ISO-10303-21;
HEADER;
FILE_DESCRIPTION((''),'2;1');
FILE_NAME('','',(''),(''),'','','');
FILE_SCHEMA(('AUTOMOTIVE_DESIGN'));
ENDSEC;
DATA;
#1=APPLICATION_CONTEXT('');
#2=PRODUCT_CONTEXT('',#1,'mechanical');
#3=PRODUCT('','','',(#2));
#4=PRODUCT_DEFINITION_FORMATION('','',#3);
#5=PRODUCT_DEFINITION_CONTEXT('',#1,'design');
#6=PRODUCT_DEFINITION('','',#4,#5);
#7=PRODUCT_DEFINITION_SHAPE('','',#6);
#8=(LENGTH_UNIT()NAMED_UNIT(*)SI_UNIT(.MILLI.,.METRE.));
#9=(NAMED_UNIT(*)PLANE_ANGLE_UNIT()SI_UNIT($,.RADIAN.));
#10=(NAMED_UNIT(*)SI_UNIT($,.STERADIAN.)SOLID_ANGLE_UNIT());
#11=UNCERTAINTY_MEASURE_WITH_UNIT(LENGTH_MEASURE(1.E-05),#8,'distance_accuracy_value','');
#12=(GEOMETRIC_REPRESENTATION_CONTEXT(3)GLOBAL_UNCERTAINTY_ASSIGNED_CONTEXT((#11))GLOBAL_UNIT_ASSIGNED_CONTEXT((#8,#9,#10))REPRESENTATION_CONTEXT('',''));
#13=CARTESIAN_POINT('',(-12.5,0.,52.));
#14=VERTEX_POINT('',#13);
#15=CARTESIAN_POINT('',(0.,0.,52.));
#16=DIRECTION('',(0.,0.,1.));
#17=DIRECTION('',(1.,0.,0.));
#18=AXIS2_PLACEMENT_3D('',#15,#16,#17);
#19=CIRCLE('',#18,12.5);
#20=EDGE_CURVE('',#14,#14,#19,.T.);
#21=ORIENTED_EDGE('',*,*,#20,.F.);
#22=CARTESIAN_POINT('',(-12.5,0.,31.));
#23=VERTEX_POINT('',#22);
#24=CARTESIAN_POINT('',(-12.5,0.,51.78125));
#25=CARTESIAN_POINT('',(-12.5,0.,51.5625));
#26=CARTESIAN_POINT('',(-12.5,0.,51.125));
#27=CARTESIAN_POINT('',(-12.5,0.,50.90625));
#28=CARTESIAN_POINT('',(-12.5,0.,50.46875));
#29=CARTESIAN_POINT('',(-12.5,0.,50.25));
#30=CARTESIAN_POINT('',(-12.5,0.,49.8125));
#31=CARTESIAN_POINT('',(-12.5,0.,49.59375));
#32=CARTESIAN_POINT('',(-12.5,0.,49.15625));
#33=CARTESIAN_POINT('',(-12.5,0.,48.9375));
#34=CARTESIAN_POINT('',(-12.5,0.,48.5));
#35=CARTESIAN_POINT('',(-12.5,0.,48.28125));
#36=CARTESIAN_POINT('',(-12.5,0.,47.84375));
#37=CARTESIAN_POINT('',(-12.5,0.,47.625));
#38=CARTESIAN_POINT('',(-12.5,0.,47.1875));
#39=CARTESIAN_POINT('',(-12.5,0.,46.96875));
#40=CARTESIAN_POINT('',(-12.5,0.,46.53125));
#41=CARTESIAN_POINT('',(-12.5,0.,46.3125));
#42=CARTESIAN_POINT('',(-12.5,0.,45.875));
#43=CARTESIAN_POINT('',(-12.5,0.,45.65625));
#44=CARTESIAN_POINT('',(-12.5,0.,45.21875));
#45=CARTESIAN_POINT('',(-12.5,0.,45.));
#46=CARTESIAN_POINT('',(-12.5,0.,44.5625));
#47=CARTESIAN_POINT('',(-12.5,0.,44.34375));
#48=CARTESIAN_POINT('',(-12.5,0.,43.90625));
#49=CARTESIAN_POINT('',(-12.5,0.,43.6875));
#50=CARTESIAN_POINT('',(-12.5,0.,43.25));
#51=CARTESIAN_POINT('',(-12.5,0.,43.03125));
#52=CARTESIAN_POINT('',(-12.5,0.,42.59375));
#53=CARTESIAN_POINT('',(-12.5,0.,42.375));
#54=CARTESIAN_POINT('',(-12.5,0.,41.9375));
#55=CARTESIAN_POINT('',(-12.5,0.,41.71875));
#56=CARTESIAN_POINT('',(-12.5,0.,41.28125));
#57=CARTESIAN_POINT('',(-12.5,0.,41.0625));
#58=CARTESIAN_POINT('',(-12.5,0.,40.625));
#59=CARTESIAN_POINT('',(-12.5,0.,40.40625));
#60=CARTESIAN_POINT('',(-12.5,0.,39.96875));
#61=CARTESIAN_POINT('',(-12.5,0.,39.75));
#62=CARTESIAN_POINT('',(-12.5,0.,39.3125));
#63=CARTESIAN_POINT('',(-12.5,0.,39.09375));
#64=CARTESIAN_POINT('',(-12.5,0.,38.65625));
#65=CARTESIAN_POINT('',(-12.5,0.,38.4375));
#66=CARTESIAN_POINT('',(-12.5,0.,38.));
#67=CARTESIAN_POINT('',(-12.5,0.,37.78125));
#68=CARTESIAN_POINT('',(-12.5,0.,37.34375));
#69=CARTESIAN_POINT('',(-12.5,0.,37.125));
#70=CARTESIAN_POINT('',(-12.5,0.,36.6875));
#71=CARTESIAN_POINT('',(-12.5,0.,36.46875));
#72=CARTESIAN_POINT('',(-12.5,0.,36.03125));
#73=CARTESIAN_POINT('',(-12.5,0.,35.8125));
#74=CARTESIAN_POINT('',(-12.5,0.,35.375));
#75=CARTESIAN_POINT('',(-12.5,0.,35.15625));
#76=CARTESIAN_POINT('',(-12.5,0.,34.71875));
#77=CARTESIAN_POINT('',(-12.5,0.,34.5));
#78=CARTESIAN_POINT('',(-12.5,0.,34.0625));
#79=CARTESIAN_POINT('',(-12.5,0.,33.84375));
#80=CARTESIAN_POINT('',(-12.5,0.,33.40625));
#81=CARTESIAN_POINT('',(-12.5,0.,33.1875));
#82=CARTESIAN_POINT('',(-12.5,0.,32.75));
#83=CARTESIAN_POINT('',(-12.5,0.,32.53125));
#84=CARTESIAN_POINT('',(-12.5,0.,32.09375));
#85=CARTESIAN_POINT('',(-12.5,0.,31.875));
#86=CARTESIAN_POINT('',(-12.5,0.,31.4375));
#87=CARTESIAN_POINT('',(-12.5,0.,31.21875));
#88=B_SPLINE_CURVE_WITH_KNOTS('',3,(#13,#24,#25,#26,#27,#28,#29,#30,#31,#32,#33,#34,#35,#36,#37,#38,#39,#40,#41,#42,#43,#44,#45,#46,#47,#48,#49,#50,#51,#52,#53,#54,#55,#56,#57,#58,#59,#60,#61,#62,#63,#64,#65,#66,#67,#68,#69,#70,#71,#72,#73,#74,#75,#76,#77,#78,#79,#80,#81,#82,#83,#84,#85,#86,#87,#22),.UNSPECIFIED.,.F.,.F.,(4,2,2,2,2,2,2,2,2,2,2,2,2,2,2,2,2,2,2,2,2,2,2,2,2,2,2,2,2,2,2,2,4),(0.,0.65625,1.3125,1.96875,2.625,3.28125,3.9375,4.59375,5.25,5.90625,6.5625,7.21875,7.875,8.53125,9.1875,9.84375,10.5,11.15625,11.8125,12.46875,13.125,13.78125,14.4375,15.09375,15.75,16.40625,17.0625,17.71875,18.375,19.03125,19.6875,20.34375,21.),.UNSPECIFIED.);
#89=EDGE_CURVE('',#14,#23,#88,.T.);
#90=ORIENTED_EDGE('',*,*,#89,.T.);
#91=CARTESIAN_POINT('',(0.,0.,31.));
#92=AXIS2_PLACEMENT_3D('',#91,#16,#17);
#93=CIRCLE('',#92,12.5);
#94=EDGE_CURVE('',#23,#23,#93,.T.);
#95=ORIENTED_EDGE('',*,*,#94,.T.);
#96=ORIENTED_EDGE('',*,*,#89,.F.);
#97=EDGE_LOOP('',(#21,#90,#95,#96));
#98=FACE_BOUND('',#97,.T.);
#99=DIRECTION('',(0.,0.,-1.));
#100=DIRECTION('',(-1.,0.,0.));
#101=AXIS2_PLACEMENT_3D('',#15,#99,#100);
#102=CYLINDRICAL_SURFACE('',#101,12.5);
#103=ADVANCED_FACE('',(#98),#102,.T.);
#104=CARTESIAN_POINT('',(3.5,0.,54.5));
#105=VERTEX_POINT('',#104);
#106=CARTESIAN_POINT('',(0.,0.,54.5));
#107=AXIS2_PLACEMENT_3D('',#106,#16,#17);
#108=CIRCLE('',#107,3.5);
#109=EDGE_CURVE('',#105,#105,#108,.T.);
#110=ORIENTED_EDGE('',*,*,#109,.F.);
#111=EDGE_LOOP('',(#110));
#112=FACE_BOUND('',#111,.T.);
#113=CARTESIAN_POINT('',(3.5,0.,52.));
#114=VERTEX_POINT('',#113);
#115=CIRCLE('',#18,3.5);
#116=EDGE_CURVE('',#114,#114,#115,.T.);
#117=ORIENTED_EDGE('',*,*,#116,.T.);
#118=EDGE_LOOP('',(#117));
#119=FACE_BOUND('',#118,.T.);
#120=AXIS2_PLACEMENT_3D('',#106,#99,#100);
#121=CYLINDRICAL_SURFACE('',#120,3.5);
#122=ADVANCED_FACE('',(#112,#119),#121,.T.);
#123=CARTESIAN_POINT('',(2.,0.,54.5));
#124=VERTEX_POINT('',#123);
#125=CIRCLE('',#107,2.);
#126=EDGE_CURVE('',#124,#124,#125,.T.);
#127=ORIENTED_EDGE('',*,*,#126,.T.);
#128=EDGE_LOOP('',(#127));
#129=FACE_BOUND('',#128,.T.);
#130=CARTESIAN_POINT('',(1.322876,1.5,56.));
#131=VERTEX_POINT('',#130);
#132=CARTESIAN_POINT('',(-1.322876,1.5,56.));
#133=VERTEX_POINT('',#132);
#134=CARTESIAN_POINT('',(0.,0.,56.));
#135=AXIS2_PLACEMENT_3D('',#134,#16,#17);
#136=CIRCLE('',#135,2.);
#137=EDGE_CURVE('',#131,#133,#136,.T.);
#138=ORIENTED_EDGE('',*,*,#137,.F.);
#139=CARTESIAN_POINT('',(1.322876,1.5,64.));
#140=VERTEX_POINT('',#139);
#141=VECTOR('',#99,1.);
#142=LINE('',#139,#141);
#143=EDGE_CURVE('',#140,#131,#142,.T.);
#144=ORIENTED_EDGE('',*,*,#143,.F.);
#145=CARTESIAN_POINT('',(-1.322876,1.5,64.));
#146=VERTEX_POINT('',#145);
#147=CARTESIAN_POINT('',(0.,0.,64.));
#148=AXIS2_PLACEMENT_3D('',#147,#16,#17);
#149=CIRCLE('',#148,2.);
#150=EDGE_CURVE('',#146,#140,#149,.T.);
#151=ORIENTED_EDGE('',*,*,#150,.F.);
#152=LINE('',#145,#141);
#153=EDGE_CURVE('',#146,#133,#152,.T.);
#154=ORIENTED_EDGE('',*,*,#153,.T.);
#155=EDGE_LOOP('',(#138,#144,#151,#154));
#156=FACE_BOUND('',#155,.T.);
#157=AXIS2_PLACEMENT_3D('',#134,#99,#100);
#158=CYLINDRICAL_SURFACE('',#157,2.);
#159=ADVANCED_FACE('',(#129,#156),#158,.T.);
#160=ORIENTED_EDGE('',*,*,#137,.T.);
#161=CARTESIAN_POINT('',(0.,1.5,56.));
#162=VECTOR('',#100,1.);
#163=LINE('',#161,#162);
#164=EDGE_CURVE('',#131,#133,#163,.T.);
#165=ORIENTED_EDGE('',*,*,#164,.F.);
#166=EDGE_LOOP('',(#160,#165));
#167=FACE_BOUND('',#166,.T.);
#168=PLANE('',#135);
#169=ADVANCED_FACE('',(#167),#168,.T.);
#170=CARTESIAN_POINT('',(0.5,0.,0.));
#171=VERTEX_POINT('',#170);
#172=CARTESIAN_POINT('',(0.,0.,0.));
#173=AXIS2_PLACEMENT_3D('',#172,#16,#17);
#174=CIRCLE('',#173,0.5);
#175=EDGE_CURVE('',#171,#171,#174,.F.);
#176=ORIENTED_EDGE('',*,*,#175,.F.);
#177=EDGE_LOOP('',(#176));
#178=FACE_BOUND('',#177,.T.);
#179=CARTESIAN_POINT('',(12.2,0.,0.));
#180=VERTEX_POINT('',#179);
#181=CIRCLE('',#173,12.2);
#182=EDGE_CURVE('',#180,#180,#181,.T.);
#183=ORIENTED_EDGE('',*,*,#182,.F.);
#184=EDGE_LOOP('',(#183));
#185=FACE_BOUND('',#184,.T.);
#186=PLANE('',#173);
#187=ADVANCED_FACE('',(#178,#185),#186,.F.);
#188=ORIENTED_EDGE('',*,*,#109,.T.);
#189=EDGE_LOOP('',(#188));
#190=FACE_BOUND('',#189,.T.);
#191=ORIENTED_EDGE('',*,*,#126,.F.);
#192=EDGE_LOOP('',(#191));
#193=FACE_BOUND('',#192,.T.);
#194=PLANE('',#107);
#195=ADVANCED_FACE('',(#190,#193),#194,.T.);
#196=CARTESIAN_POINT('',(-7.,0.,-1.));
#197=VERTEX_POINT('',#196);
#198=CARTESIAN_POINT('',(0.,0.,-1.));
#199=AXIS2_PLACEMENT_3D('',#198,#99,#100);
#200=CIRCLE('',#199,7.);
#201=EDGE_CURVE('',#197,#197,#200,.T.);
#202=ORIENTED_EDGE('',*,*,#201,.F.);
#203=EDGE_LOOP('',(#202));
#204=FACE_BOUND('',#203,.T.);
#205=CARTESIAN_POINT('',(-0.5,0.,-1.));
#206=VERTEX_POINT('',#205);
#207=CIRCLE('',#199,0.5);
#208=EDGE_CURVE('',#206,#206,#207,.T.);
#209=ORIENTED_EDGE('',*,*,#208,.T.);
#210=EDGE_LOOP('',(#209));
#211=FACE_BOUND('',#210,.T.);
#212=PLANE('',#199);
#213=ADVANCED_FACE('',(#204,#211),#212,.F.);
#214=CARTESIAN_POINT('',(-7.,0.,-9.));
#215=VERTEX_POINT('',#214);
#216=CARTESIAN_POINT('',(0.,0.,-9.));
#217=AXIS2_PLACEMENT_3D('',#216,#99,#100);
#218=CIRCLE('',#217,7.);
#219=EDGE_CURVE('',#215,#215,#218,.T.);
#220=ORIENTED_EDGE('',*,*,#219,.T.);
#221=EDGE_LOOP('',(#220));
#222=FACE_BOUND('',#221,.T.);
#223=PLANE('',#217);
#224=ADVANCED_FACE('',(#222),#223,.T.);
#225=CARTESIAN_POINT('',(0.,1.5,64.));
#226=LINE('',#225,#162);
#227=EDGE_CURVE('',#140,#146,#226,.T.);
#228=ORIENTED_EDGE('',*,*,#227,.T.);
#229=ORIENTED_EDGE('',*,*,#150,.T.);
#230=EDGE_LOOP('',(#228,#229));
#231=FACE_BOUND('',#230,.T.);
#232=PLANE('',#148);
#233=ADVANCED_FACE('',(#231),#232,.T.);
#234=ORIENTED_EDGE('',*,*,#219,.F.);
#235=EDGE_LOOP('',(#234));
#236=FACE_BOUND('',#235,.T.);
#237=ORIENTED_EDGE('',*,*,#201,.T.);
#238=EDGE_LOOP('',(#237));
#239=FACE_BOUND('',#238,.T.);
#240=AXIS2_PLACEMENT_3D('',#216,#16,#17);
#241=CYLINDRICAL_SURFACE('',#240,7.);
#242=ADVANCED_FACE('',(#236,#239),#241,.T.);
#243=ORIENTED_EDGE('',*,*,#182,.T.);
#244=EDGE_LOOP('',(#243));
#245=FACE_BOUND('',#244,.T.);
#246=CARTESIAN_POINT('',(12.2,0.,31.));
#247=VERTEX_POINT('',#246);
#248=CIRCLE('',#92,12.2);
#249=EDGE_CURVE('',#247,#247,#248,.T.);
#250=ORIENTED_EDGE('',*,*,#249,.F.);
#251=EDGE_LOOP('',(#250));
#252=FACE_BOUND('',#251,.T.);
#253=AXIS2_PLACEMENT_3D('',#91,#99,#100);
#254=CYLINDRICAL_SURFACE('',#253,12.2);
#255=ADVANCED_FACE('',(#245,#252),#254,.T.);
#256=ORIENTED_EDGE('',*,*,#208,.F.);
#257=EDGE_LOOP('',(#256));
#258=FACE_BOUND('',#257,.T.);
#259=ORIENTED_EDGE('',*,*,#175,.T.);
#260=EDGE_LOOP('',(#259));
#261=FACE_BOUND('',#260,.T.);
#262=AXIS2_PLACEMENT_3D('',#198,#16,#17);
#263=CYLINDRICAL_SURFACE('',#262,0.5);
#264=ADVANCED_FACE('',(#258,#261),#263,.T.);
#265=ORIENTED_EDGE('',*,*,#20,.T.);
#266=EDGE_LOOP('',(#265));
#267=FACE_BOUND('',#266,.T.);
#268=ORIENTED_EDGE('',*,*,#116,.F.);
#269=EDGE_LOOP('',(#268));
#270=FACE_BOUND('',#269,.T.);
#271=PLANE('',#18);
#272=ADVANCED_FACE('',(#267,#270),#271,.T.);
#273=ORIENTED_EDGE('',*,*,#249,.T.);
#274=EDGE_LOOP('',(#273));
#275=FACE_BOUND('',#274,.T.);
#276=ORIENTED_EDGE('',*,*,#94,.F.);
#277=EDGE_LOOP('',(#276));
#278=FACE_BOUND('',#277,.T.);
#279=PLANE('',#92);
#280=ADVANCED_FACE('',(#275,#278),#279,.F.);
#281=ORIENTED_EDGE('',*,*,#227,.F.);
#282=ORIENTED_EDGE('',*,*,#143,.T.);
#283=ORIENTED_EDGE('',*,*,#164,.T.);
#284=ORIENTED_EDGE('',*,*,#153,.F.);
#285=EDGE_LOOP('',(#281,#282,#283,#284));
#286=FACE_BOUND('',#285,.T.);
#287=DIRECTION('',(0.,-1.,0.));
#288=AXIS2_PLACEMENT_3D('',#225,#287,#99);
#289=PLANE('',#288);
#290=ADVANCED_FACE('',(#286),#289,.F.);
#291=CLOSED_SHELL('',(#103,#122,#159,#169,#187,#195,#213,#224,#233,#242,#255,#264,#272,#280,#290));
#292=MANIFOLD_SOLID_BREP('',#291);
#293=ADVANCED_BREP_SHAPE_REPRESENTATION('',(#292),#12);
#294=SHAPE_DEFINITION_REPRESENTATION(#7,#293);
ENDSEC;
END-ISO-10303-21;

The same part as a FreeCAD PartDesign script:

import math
import FreeCAD as App
import Part
import Sketcher
Q = App.Units.Quantity

doc = App.newDocument("Part")
body = doc.addObject("PartDesign::Body", "Body")

# Sketch on XY plane
sketch1 = body.newObject("Sketcher::SketchObject", "Sketch")
sketch1.AttachmentSupport = (doc.getObject("XY_Plane"), [""])
sketch1.MapMode = "FlatFace"
sketch1.addGeometry(Part.Circle(App.Vector(0, 0, 0), App.Vector(0, 0, 1), 12), False)
sketch1.addConstraint([
    Sketcher.Constraint("Coincident", 0, 3, -1, 1),
    Sketcher.Constraint("Diameter", 0, Q("24.4 mm")),
])
pad1 = body.newObject("PartDesign::Pad", "Pad")
pad1.Profile = sketch1
pad1.Length = 31

# Sketch on XY plane
sketch2 = body.newObject("Sketcher::SketchObject", "Sketch001")
sketch2.AttachmentSupport = (doc.getObject("XY_Plane"), [""])
sketch2.MapMode = "FlatFace"
sketch2.AttachmentOffset = App.Placement(App.Vector(0, 0, 31), App.Rotation())
sketch2.addGeometry(Part.Circle(App.Vector(0, 0, 0), App.Vector(0, 0, 1), 12), False)
sketch2.addConstraint([
    Sketcher.Constraint("Coincident", 0, 3, -1, 1),
    Sketcher.Constraint("Diameter", 0, Q("25 mm")),
])
pad2 = body.newObject("PartDesign::Pad", "Pad001")
pad2.Profile = sketch2
pad2.Length = 21

# Sketch on XY plane
sketch3 = body.newObject("Sketcher::SketchObject", "Sketch002")
sketch3.AttachmentSupport = (doc.getObject("XY_Plane"), [""])
sketch3.MapMode = "FlatFace"
sketch3.AttachmentOffset = App.Placement(App.Vector(0, 0, 52), App.Rotation())
sketch3.addGeometry(Part.Circle(App.Vector(0, 0, 0), App.Vector(0, 0, 1), 3.5), False)
sketch3.addConstraint([
    Sketcher.Constraint("Coincident", 0, 3, -1, 1),
    Sketcher.Constraint("Diameter", 0, Q("7 mm")),
])
pad3 = body.newObject("PartDesign::Pad", "Pad002")
pad3.Profile = sketch3
pad3.Length = 2.5

# Sketch on XY plane
sketch4 = body.newObject("Sketcher::SketchObject", "Sketch003")
sketch4.AttachmentSupport = (doc.getObject("XY_Plane"), [""])
sketch4.MapMode = "FlatFace"
sketch4.AttachmentOffset = App.Placement(App.Vector(0, 0, 54.5), App.Rotation())
sketch4.addGeometry(Part.Circle(App.Vector(0, 0, 0), App.Vector(0, 0, 1), 2), False)
sketch4.addConstraint([
    Sketcher.Constraint("Coincident", 0, 3, -1, 1),
    Sketcher.Constraint("Diameter", 0, Q("4 mm")),
])
pad4 = body.newObject("PartDesign::Pad", "Pad003")
pad4.Profile = sketch4
pad4.Length = 1.5

# Sketch on XY plane
sketch5 = body.newObject("Sketcher::SketchObject", "Sketch004")
sketch5.AttachmentSupport = (doc.getObject("XY_Plane"), [""])
sketch5.MapMode = "FlatFace"
sketch5.AttachmentOffset = App.Placement(App.Vector(0, 0, 56), App.Rotation())
sketch5.addGeometry([
    Part.ArcOfCircle(Part.Circle(App.Vector(0, 0, 0), App.Vector(0, 0, 1), 2), math.radians(131), math.radians(409)),
    Part.LineSegment(App.Vector(1.3, 1.5, 0), App.Vector(-1.3, 1.5, 0)),
], False)
sketch5.addConstraint([
    Sketcher.Constraint("Coincident", 0, 1, 1, 2),
    Sketcher.Constraint("Coincident", 1, 1, 0, 2),
    Sketcher.Constraint("Horizontal", 1),
    Sketcher.Constraint("Coincident", 0, 3, -1, 1),
    Sketcher.Constraint("Radius", 0, Q("2 mm")),
    Sketcher.Constraint("DistanceY", -1, 1, 0, 1, Q("1.5 mm")),
])
pad5 = body.newObject("PartDesign::Pad", "Pad004")
pad5.Profile = sketch5
pad5.Length = 8

# Sketch on XY plane
sketch6 = body.newObject("Sketcher::SketchObject", "Sketch005")
sketch6.AttachmentSupport = (doc.getObject("XY_Plane"), [""])
sketch6.MapMode = "FlatFace"
sketch6.addGeometry(Part.Circle(App.Vector(0, 0, 0), App.Vector(0, 0, 1), 0.5), False)
sketch6.addConstraint([
    Sketcher.Constraint("Coincident", 0, 3, -1, 1),
    Sketcher.Constraint("Diameter", 0, Q("1 mm")),
])
pad6 = body.newObject("PartDesign::Pad", "Pad005")
pad6.Profile = sketch6
pad6.Length = 1
pad6.Reversed = True

# Sketch on XY plane
sketch7 = body.newObject("Sketcher::SketchObject", "Sketch006")
sketch7.AttachmentSupport = (doc.getObject("XY_Plane"), [""])
sketch7.MapMode = "FlatFace"
sketch7.AttachmentOffset = App.Placement(App.Vector(0, 0, -1), App.Rotation())
sketch7.addGeometry(Part.Circle(App.Vector(0, 0, 0), App.Vector(0, 0, 1), 7), False)
sketch7.addConstraint([
    Sketcher.Constraint("Coincident", 0, 3, -1, 1),
    Sketcher.Constraint("Diameter", 0, Q("14 mm")),
])
pad7 = body.newObject("PartDesign::Pad", "Pad006")
pad7.Profile = sketch7
pad7.Length = 8
pad7.Reversed = True

doc.recompute()
